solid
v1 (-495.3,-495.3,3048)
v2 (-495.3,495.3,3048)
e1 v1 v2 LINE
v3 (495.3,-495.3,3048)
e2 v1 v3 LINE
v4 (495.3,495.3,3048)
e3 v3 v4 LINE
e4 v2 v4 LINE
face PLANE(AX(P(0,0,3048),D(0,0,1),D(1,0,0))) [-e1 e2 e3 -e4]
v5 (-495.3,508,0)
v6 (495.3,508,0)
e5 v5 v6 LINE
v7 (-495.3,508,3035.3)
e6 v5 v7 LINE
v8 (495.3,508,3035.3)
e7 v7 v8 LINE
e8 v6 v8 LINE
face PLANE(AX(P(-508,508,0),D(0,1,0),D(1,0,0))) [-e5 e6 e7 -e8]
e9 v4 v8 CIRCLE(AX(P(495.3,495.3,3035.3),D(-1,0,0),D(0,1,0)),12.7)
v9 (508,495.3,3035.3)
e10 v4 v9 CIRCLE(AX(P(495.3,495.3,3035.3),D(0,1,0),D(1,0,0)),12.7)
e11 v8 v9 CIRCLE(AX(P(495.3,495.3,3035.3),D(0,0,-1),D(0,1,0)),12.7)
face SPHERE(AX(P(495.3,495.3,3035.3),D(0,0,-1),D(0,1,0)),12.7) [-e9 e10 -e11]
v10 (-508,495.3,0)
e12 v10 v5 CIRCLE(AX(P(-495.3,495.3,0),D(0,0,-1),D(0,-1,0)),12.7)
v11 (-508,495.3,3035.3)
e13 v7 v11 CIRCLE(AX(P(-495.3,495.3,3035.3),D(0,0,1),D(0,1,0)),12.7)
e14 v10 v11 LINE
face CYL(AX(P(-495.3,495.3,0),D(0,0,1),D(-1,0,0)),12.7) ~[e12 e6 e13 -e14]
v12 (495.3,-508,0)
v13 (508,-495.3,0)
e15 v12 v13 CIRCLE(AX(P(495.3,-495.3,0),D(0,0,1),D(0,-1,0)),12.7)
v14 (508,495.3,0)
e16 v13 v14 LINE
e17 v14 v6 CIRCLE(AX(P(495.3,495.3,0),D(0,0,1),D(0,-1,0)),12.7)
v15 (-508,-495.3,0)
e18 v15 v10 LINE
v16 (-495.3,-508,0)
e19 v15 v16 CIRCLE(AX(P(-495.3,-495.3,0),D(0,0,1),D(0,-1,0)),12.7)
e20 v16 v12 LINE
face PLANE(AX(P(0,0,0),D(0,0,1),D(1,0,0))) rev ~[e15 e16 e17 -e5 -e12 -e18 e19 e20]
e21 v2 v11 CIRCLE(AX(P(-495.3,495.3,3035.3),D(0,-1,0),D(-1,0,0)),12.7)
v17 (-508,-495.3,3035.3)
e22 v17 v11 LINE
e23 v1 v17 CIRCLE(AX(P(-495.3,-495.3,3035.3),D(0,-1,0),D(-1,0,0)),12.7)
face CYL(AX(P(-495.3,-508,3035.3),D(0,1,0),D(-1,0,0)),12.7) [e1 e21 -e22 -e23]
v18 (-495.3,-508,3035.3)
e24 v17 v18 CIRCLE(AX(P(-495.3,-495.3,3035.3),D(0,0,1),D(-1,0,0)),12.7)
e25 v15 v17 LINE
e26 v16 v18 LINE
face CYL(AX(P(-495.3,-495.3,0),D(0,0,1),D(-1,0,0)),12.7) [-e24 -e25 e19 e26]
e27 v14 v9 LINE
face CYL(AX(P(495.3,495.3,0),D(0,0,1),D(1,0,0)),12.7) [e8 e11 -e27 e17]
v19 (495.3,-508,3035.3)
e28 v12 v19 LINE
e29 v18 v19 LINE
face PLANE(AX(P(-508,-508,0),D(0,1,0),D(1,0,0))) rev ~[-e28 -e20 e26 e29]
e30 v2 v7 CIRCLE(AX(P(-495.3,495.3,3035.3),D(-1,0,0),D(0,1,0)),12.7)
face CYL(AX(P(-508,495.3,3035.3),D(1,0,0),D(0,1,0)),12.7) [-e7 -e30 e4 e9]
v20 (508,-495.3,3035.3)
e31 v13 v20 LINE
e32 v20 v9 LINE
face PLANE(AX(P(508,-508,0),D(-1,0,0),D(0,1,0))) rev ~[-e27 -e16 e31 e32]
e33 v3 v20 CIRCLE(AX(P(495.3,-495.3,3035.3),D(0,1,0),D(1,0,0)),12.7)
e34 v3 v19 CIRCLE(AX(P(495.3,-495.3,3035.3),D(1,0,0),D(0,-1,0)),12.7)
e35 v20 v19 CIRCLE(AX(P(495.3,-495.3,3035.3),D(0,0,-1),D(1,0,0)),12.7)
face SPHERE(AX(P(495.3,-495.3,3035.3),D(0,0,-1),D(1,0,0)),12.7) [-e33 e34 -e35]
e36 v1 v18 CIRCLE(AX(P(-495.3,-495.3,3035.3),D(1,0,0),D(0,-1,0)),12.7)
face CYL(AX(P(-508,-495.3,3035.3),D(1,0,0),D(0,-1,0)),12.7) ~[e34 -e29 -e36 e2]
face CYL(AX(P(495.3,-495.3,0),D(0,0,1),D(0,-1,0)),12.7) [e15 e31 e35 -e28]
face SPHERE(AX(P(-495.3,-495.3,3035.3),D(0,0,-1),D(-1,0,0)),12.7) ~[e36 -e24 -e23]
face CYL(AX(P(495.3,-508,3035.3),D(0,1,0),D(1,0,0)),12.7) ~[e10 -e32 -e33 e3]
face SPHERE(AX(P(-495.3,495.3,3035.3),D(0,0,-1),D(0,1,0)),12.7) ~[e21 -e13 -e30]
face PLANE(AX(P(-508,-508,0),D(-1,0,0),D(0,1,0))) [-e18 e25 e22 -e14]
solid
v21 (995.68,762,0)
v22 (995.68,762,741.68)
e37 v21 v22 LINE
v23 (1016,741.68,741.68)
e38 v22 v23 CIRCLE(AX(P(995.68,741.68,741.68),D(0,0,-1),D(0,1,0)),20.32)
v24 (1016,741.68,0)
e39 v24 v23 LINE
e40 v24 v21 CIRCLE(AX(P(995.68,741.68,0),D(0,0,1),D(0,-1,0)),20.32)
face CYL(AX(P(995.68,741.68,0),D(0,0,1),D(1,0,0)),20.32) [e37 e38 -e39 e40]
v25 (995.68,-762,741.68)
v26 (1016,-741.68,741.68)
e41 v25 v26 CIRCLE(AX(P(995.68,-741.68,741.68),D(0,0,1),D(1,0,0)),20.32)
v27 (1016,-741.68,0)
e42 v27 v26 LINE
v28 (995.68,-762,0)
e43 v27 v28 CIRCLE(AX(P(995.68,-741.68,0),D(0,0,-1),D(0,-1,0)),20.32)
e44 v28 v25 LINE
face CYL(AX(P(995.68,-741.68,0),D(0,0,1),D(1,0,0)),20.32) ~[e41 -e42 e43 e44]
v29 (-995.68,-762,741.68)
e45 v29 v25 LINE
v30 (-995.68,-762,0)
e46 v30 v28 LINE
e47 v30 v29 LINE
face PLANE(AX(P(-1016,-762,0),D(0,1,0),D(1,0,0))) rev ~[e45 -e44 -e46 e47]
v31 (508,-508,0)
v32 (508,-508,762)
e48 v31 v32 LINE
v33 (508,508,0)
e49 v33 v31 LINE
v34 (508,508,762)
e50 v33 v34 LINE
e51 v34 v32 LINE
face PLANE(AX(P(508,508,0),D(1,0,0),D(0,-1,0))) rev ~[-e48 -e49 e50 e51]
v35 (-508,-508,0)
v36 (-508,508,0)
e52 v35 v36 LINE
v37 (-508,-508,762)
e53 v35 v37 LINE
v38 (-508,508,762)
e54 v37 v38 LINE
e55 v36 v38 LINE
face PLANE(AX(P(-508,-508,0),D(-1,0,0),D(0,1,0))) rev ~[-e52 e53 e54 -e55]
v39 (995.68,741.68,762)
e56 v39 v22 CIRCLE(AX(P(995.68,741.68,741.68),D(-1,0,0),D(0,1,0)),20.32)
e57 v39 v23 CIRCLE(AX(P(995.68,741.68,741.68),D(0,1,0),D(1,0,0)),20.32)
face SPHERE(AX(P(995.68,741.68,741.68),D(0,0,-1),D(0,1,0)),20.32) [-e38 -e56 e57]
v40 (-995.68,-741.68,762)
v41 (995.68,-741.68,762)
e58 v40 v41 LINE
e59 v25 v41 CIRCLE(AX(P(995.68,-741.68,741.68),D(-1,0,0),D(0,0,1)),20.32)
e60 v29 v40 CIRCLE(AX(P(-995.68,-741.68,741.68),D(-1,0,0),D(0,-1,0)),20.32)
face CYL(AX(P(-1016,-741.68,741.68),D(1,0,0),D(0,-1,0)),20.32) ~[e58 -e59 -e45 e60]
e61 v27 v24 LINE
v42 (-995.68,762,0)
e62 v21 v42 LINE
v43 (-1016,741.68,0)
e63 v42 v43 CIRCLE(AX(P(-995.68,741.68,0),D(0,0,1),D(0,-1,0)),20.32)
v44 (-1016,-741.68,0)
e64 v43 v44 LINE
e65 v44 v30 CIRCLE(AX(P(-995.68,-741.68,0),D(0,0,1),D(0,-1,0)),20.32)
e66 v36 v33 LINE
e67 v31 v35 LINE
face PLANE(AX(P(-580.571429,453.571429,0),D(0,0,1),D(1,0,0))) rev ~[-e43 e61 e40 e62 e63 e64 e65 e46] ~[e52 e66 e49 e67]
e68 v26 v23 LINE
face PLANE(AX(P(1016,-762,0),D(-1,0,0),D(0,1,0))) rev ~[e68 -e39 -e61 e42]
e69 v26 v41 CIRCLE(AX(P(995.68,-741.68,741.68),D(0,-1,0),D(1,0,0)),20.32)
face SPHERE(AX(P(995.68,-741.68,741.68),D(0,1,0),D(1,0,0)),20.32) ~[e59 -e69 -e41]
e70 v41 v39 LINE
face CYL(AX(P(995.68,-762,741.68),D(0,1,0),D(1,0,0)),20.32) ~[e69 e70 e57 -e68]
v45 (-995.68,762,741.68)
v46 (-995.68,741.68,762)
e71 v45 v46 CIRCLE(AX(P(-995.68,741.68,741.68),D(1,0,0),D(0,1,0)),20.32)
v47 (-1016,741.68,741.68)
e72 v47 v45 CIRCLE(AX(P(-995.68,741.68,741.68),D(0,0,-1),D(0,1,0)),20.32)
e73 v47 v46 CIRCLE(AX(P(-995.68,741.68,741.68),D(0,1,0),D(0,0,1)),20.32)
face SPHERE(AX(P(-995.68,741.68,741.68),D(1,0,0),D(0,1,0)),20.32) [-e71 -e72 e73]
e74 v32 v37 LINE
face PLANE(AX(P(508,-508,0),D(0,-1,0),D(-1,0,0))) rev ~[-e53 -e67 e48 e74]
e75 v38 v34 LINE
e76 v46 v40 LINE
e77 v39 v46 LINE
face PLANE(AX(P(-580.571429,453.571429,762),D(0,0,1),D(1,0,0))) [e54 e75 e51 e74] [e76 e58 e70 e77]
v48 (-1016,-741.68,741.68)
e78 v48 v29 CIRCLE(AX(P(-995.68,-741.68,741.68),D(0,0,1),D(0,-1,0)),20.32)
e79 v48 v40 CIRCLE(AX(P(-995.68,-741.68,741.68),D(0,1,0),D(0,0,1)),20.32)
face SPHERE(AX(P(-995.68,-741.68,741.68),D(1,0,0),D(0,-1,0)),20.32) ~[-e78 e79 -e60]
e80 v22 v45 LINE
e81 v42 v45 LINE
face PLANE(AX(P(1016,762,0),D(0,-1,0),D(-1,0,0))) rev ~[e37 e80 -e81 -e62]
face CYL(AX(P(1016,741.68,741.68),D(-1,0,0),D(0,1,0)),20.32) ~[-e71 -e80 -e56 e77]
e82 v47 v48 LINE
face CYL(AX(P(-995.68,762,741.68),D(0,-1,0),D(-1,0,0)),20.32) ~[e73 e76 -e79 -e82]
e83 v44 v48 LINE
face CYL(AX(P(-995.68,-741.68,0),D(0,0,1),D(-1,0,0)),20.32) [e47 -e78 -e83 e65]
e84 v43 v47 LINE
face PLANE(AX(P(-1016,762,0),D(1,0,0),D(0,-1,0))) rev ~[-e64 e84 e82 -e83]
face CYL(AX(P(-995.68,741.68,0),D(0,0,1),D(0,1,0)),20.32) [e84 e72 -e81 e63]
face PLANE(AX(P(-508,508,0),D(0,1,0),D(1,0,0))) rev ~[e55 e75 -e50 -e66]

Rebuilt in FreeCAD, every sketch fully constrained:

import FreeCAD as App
import Part
import Sketcher
Q = App.Units.Quantity


def edges_at(feature, points):
    """Names of the edges that pass closest to the given points."""
    edges = feature.Shape.Edges
    near = lambda p: min(range(len(edges)), key=lambda i: edges[i].distToShape(Part.Vertex(*p))[0])
    return sorted({f"Edge{near(p) + 1}" for p in points})


def add_polygon(sketch, points):
    """Adds a closed chain of lines whose ends are joined by coincident constraints."""
    first, n = sketch.GeometryCount, len(points)
    for a, b in zip(points, points[1:] + points[:1]):
        sketch.addGeometry(Part.LineSegment(App.Vector(*a, 0), App.Vector(*b, 0)), False)
    for i in range(n):
        sketch.addConstraint(Sketcher.Constraint("Coincident", first + i, 2, first + (i + 1) % n, 1))

doc = App.newDocument("Part")
params = doc.addObject("Spreadsheet::Sheet", "Params")
for row, (alias, value) in enumerate([
    ("sketch1_width", "40 in"),
    ("pad1_length", "120 in"),
    ("fillet_radius", "0.5 in"),
    ("sketch2_width", "80 in"),
    ("sketch2_width2", "40 in"),
    ("sketch2_height", "60 in"),
    ("pad2_length", "30 in"),
    ("fillet2_radius", "0.8 in"),
], start=1):
    params.set(f"A{row}", alias)
    params.set(f"B{row}", "=" + value)
    params.setAlias(f"B{row}", alias)

body = doc.addObject("PartDesign::Body", "Body")

sketch1 = body.newObject("Sketcher::SketchObject", "Sketch")
sketch1.AttachmentSupport = (doc.getObject("XY_Plane"), [""])
sketch1.MapMode = "FlatFace"
add_polygon(sketch1, [(-508, 508), (-508, -508), (508, -508), (508, 508)])
sketch1.addConstraint([
    Sketcher.Constraint("Vertical", 0),
    Sketcher.Constraint("Horizontal", 1),
    Sketcher.Constraint("Vertical", 2),
    Sketcher.Constraint("Horizontal", 3),
    Sketcher.Constraint("Symmetric", 0, 2, 2, 2, -1, 1),
    Sketcher.Constraint("Equal", 3, 0),
    Sketcher.Constraint("DistanceX", 1, 1, 1, 2, Q("40 in")),
])
sketch1.setExpression("Constraints[10]", "Params.sketch1_width")
pad1 = body.newObject("PartDesign::Pad", "Pad")
pad1.Profile = sketch1
pad1.setExpression("Length", "Params.pad1_length")
doc.recompute()

fillet = body.newObject("PartDesign::Fillet", "Fillet")
fillet.Base = (pad1, edges_at(pad1, [
    (508, 508, 1524),
    (-508, 508, 1524),
    (-508, -508, 1524),
    (508, -508, 1524),
    (0, 508, 3048),
    (-508, 0, 3048),
    (508, 0, 3048),
    (0, -508, 3048),
]))
fillet.setExpression("Radius", "Params.fillet_radius")
body2 = doc.addObject("PartDesign::Body", "Body001")

sketch2 = body2.newObject("Sketcher::SketchObject", "Sketch001")
sketch2.AttachmentSupport = (doc.getObject("XY_Plane001"), [""])
sketch2.MapMode = "FlatFace"
add_polygon(sketch2, [(1016, -762), (1016, 762), (-1016, 762), (-1016, -762)])
add_polygon(sketch2, [(-508, 508), (508, 508), (508, -508), (-508, -508)])
sketch2.addConstraint([
    Sketcher.Constraint("Vertical", 0),
    Sketcher.Constraint("Horizontal", 1),
    Sketcher.Constraint("Vertical", 2),
    Sketcher.Constraint("Horizontal", 3),
    Sketcher.Constraint("Horizontal", 4),
    Sketcher.Constraint("Vertical", 5),
    Sketcher.Constraint("Horizontal", 6),
    Sketcher.Constraint("Vertical", 7),
    Sketcher.Constraint("Symmetric", 0, 2, 2, 2, -1, 1),
    Sketcher.Constraint("Symmetric", 4, 2, 6, 2, -1, 1),
    Sketcher.Constraint("Equal", 6, 5),
    Sketcher.Constraint("DistanceX", 1, 2, 1, 1, Q("80 in")),
    Sketcher.Constraint("DistanceX", 4, 1, 4, 2, Q("40 in")),
    Sketcher.Constraint("DistanceY", 0, 1, 0, 2, Q("60 in")),
])
sketch2.setExpression("Constraints[19]", "Params.sketch2_width")
sketch2.setExpression("Constraints[20]", "Params.sketch2_width2")
sketch2.setExpression("Constraints[21]", "Params.sketch2_height")
pad2 = body2.newObject("PartDesign::Pad", "Pad001")
pad2.Profile = sketch2
pad2.setExpression("Length", "Params.pad2_length")
doc.recompute()

fillet2 = body2.newObject("PartDesign::Fillet", "Fillet001")
fillet2.Base = (pad2, edges_at(pad2, [
    (1016, 762, 381),
    (0, 762, 762),
    (-1016, 762, 381),
    (1016, 0, 762),
    (1016, -762, 381),
    (0, -762, 762),
    (-1016, -762, 381),
    (-1016, 0, 762),
]))
fillet2.setExpression("Radius", "Params.fillet2_radius")

doc.recompute()
